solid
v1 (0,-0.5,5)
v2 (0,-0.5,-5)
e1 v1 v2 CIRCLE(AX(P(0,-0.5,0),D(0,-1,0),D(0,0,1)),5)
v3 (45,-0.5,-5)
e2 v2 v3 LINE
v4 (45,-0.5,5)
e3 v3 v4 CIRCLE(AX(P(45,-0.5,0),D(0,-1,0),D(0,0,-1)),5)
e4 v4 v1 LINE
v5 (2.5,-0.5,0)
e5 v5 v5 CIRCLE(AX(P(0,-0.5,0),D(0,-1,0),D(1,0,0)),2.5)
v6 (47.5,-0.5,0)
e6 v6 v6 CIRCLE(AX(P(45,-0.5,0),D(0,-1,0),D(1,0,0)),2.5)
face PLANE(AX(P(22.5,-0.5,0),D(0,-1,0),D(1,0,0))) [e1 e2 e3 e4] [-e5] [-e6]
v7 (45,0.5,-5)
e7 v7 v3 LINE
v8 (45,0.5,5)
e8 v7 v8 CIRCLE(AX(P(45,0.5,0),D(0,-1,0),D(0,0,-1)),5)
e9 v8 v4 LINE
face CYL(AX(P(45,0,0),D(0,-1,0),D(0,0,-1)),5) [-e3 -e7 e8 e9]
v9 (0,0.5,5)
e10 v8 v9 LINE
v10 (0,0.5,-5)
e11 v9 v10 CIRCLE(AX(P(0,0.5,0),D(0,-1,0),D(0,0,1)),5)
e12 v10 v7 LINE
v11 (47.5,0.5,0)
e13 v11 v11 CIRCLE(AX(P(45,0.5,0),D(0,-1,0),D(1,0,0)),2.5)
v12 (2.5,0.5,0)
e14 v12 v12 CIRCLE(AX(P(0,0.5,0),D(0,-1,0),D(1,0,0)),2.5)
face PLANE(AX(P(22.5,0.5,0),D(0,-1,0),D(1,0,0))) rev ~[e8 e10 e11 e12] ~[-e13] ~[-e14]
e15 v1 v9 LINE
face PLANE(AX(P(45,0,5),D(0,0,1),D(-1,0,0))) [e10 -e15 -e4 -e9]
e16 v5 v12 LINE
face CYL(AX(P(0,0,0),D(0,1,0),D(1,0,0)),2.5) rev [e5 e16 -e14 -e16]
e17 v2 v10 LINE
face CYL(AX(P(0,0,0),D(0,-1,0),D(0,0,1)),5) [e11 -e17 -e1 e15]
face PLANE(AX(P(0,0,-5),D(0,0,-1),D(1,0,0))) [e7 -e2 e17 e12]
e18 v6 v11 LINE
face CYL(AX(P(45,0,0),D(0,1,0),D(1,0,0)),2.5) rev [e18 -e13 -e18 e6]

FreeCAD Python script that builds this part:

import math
import FreeCAD as App
import Part
import Sketcher
Q = App.Units.Quantity

doc = App.newDocument("Part")
params = doc.addObject("Spreadsheet::Sheet", "Params")
for row, (alias, value) in enumerate([
    ("sketch1_diameter", "5 mm"),
    ("sketch1_radius", "5 mm"),
    ("sketch1_width", "45 mm"),
    ("pad1_length", "1 mm"),
], start=1):
    params.set(f"A{row}", alias)
    params.set(f"B{row}", "=" + value)
    params.setAlias(f"B{row}", alias)

body = doc.addObject("PartDesign::Body", "Body")

sketch1 = body.newObject("Sketcher::SketchObject", "Sketch")
sketch1.AttachmentSupport = (doc.getObject("XZ_Plane"), [""])
sketch1.MapMode = "FlatFace"
sketch1.addGeometry([
    Part.LineSegment(App.Vector(0, -5, 0), App.Vector(45, -5, 0)),
    Part.ArcOfCircle(Part.Circle(App.Vector(45, 0, 0), App.Vector(0, 0, 1), 5), math.radians(-90), math.radians(90)),
    Part.LineSegment(App.Vector(45, 5, 0), App.Vector(0, 5, 0)),
    Part.ArcOfCircle(Part.Circle(App.Vector(0, 0, 0), App.Vector(0, 0, 1), 5), math.radians(90), math.radians(270)),
    Part.Circle(App.Vector(0, 0, 0), App.Vector(0, 0, 1), 2.5),
    Part.Circle(App.Vector(45, 0, 0), App.Vector(0, 0, 1), 2.5),
], False)
sketch1.addConstraint([
    Sketcher.Constraint("Tangent", 0, 2, 1, 1),
    Sketcher.Constraint("Tangent", 1, 2, 2, 1),
    Sketcher.Constraint("Tangent", 2, 2, 3, 1),
    Sketcher.Constraint("Tangent", 3, 2, 0, 1),
    Sketcher.Constraint("Horizontal", 0),
    Sketcher.Constraint("Horizontal", 2),
    Sketcher.Constraint("Coincident", 3, 3, -1, 1),
    Sketcher.Constraint("Coincident", 4, 3, -1, 1),
    Sketcher.Constraint("Coincident", 5, 3, 1, 3),
    Sketcher.Constraint("Equal", 4, 5),
    Sketcher.Constraint("Diameter", 4, Q("5 mm")),
    Sketcher.Constraint("Radius", 1, Q("5 mm")),
    Sketcher.Constraint("DistanceX", 0, 1, 0, 2, Q("45 mm")),
])
sketch1.setExpression("Constraints[10]", "Params.sketch1_diameter")
sketch1.setExpression("Constraints[11]", "Params.sketch1_radius")
sketch1.setExpression("Constraints[12]", "Params.sketch1_width")
pad1 = body.newObject("PartDesign::Pad", "Pad")
pad1.Profile = sketch1
pad1.setExpression("Length", "Params.pad1_length")
pad1.Midplane = True

doc.recompute()
